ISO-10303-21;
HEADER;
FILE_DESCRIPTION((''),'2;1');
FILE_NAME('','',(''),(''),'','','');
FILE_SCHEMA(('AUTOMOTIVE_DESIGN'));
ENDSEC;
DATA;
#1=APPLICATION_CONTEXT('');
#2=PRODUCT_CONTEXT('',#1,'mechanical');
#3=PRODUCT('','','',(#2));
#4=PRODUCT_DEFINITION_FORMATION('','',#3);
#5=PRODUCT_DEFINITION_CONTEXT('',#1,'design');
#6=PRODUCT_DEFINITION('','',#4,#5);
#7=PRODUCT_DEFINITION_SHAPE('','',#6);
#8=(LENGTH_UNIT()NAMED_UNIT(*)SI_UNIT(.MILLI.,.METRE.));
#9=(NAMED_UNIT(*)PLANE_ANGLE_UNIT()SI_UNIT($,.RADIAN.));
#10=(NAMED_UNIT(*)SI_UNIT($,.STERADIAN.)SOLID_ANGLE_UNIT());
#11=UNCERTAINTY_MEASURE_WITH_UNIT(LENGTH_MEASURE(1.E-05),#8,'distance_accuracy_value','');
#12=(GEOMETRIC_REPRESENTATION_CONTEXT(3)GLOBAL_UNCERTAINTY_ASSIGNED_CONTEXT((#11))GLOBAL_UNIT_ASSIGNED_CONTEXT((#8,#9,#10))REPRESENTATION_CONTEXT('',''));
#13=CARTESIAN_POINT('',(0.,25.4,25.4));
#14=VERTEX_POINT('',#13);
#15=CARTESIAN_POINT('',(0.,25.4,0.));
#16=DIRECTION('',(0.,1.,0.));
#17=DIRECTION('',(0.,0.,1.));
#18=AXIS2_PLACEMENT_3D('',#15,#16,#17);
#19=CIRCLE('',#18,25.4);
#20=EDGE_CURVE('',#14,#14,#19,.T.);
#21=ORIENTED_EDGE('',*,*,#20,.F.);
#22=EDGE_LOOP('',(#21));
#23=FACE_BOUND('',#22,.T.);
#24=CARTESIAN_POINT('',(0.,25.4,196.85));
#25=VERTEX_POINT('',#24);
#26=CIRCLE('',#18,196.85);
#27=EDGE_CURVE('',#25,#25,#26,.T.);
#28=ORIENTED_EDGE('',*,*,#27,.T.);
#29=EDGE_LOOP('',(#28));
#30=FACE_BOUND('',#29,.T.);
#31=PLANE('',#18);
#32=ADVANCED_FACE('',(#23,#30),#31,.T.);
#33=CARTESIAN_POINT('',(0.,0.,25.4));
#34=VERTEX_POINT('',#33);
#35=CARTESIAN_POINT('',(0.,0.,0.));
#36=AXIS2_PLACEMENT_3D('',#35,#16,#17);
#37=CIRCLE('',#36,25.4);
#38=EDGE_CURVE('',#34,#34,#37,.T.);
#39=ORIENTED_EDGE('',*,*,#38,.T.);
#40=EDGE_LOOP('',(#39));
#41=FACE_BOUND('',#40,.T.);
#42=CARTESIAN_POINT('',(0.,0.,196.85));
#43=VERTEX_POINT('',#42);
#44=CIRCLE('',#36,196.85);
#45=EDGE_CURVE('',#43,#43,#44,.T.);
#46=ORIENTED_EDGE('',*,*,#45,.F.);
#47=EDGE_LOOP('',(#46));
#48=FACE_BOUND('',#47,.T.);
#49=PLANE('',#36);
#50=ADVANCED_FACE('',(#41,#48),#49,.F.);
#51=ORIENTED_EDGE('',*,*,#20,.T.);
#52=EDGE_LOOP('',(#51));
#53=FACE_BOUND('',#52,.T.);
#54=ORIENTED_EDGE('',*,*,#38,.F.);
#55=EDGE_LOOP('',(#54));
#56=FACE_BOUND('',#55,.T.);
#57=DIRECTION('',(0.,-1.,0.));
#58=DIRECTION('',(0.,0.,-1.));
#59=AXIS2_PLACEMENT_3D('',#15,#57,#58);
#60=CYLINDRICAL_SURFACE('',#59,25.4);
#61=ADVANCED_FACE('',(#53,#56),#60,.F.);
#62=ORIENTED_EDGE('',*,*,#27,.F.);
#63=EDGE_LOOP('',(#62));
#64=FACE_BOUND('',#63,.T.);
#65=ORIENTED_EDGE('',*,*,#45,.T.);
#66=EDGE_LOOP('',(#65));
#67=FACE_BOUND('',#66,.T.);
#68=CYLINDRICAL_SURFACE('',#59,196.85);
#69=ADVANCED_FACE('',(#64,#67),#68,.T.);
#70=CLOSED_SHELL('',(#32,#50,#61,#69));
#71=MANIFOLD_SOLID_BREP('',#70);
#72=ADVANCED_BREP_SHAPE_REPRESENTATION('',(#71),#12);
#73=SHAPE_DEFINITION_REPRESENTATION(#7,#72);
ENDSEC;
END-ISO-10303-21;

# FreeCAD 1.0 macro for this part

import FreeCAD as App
import Part
import Sketcher
from FreeCAD import Vector
Q = App.Units.Quantity

doc = App.newDocument("Part")
body = doc.addObject("PartDesign::Body", "Body")

# Sketch on XZ plane
sketch1 = body.newObject("Sketcher::SketchObject", "Sketch")
sketch1.AttachmentSupport = (doc.getObject("XZ_Plane"), [""])
sketch1.MapMode = "FlatFace"
sketch1.addGeometry(Part.Circle(Vector(0, 0, 0), Vector(0, 0, 1), 197), False)
sketch1.addGeometry(Part.Circle(Vector(0, 0, 0), Vector(0, 0, 1), 25), False)
sketch1.addConstraint(Sketcher.Constraint("Coincident", 0, 3, -1, 1))
sketch1.addConstraint(Sketcher.Constraint("Coincident", 1, 3, -1, 1))
sketch1.addConstraint(Sketcher.Constraint("Diameter", 1, Q("2 in")))
sketch1.addConstraint(Sketcher.Constraint("Diameter", 0, Q("15.5 in")))
pad1 = body.newObject("PartDesign::Pad", "Pad")
pad1.Profile = sketch1
pad1.Length = Q("1 in")
pad1.Reversed = True

doc.recompute()
